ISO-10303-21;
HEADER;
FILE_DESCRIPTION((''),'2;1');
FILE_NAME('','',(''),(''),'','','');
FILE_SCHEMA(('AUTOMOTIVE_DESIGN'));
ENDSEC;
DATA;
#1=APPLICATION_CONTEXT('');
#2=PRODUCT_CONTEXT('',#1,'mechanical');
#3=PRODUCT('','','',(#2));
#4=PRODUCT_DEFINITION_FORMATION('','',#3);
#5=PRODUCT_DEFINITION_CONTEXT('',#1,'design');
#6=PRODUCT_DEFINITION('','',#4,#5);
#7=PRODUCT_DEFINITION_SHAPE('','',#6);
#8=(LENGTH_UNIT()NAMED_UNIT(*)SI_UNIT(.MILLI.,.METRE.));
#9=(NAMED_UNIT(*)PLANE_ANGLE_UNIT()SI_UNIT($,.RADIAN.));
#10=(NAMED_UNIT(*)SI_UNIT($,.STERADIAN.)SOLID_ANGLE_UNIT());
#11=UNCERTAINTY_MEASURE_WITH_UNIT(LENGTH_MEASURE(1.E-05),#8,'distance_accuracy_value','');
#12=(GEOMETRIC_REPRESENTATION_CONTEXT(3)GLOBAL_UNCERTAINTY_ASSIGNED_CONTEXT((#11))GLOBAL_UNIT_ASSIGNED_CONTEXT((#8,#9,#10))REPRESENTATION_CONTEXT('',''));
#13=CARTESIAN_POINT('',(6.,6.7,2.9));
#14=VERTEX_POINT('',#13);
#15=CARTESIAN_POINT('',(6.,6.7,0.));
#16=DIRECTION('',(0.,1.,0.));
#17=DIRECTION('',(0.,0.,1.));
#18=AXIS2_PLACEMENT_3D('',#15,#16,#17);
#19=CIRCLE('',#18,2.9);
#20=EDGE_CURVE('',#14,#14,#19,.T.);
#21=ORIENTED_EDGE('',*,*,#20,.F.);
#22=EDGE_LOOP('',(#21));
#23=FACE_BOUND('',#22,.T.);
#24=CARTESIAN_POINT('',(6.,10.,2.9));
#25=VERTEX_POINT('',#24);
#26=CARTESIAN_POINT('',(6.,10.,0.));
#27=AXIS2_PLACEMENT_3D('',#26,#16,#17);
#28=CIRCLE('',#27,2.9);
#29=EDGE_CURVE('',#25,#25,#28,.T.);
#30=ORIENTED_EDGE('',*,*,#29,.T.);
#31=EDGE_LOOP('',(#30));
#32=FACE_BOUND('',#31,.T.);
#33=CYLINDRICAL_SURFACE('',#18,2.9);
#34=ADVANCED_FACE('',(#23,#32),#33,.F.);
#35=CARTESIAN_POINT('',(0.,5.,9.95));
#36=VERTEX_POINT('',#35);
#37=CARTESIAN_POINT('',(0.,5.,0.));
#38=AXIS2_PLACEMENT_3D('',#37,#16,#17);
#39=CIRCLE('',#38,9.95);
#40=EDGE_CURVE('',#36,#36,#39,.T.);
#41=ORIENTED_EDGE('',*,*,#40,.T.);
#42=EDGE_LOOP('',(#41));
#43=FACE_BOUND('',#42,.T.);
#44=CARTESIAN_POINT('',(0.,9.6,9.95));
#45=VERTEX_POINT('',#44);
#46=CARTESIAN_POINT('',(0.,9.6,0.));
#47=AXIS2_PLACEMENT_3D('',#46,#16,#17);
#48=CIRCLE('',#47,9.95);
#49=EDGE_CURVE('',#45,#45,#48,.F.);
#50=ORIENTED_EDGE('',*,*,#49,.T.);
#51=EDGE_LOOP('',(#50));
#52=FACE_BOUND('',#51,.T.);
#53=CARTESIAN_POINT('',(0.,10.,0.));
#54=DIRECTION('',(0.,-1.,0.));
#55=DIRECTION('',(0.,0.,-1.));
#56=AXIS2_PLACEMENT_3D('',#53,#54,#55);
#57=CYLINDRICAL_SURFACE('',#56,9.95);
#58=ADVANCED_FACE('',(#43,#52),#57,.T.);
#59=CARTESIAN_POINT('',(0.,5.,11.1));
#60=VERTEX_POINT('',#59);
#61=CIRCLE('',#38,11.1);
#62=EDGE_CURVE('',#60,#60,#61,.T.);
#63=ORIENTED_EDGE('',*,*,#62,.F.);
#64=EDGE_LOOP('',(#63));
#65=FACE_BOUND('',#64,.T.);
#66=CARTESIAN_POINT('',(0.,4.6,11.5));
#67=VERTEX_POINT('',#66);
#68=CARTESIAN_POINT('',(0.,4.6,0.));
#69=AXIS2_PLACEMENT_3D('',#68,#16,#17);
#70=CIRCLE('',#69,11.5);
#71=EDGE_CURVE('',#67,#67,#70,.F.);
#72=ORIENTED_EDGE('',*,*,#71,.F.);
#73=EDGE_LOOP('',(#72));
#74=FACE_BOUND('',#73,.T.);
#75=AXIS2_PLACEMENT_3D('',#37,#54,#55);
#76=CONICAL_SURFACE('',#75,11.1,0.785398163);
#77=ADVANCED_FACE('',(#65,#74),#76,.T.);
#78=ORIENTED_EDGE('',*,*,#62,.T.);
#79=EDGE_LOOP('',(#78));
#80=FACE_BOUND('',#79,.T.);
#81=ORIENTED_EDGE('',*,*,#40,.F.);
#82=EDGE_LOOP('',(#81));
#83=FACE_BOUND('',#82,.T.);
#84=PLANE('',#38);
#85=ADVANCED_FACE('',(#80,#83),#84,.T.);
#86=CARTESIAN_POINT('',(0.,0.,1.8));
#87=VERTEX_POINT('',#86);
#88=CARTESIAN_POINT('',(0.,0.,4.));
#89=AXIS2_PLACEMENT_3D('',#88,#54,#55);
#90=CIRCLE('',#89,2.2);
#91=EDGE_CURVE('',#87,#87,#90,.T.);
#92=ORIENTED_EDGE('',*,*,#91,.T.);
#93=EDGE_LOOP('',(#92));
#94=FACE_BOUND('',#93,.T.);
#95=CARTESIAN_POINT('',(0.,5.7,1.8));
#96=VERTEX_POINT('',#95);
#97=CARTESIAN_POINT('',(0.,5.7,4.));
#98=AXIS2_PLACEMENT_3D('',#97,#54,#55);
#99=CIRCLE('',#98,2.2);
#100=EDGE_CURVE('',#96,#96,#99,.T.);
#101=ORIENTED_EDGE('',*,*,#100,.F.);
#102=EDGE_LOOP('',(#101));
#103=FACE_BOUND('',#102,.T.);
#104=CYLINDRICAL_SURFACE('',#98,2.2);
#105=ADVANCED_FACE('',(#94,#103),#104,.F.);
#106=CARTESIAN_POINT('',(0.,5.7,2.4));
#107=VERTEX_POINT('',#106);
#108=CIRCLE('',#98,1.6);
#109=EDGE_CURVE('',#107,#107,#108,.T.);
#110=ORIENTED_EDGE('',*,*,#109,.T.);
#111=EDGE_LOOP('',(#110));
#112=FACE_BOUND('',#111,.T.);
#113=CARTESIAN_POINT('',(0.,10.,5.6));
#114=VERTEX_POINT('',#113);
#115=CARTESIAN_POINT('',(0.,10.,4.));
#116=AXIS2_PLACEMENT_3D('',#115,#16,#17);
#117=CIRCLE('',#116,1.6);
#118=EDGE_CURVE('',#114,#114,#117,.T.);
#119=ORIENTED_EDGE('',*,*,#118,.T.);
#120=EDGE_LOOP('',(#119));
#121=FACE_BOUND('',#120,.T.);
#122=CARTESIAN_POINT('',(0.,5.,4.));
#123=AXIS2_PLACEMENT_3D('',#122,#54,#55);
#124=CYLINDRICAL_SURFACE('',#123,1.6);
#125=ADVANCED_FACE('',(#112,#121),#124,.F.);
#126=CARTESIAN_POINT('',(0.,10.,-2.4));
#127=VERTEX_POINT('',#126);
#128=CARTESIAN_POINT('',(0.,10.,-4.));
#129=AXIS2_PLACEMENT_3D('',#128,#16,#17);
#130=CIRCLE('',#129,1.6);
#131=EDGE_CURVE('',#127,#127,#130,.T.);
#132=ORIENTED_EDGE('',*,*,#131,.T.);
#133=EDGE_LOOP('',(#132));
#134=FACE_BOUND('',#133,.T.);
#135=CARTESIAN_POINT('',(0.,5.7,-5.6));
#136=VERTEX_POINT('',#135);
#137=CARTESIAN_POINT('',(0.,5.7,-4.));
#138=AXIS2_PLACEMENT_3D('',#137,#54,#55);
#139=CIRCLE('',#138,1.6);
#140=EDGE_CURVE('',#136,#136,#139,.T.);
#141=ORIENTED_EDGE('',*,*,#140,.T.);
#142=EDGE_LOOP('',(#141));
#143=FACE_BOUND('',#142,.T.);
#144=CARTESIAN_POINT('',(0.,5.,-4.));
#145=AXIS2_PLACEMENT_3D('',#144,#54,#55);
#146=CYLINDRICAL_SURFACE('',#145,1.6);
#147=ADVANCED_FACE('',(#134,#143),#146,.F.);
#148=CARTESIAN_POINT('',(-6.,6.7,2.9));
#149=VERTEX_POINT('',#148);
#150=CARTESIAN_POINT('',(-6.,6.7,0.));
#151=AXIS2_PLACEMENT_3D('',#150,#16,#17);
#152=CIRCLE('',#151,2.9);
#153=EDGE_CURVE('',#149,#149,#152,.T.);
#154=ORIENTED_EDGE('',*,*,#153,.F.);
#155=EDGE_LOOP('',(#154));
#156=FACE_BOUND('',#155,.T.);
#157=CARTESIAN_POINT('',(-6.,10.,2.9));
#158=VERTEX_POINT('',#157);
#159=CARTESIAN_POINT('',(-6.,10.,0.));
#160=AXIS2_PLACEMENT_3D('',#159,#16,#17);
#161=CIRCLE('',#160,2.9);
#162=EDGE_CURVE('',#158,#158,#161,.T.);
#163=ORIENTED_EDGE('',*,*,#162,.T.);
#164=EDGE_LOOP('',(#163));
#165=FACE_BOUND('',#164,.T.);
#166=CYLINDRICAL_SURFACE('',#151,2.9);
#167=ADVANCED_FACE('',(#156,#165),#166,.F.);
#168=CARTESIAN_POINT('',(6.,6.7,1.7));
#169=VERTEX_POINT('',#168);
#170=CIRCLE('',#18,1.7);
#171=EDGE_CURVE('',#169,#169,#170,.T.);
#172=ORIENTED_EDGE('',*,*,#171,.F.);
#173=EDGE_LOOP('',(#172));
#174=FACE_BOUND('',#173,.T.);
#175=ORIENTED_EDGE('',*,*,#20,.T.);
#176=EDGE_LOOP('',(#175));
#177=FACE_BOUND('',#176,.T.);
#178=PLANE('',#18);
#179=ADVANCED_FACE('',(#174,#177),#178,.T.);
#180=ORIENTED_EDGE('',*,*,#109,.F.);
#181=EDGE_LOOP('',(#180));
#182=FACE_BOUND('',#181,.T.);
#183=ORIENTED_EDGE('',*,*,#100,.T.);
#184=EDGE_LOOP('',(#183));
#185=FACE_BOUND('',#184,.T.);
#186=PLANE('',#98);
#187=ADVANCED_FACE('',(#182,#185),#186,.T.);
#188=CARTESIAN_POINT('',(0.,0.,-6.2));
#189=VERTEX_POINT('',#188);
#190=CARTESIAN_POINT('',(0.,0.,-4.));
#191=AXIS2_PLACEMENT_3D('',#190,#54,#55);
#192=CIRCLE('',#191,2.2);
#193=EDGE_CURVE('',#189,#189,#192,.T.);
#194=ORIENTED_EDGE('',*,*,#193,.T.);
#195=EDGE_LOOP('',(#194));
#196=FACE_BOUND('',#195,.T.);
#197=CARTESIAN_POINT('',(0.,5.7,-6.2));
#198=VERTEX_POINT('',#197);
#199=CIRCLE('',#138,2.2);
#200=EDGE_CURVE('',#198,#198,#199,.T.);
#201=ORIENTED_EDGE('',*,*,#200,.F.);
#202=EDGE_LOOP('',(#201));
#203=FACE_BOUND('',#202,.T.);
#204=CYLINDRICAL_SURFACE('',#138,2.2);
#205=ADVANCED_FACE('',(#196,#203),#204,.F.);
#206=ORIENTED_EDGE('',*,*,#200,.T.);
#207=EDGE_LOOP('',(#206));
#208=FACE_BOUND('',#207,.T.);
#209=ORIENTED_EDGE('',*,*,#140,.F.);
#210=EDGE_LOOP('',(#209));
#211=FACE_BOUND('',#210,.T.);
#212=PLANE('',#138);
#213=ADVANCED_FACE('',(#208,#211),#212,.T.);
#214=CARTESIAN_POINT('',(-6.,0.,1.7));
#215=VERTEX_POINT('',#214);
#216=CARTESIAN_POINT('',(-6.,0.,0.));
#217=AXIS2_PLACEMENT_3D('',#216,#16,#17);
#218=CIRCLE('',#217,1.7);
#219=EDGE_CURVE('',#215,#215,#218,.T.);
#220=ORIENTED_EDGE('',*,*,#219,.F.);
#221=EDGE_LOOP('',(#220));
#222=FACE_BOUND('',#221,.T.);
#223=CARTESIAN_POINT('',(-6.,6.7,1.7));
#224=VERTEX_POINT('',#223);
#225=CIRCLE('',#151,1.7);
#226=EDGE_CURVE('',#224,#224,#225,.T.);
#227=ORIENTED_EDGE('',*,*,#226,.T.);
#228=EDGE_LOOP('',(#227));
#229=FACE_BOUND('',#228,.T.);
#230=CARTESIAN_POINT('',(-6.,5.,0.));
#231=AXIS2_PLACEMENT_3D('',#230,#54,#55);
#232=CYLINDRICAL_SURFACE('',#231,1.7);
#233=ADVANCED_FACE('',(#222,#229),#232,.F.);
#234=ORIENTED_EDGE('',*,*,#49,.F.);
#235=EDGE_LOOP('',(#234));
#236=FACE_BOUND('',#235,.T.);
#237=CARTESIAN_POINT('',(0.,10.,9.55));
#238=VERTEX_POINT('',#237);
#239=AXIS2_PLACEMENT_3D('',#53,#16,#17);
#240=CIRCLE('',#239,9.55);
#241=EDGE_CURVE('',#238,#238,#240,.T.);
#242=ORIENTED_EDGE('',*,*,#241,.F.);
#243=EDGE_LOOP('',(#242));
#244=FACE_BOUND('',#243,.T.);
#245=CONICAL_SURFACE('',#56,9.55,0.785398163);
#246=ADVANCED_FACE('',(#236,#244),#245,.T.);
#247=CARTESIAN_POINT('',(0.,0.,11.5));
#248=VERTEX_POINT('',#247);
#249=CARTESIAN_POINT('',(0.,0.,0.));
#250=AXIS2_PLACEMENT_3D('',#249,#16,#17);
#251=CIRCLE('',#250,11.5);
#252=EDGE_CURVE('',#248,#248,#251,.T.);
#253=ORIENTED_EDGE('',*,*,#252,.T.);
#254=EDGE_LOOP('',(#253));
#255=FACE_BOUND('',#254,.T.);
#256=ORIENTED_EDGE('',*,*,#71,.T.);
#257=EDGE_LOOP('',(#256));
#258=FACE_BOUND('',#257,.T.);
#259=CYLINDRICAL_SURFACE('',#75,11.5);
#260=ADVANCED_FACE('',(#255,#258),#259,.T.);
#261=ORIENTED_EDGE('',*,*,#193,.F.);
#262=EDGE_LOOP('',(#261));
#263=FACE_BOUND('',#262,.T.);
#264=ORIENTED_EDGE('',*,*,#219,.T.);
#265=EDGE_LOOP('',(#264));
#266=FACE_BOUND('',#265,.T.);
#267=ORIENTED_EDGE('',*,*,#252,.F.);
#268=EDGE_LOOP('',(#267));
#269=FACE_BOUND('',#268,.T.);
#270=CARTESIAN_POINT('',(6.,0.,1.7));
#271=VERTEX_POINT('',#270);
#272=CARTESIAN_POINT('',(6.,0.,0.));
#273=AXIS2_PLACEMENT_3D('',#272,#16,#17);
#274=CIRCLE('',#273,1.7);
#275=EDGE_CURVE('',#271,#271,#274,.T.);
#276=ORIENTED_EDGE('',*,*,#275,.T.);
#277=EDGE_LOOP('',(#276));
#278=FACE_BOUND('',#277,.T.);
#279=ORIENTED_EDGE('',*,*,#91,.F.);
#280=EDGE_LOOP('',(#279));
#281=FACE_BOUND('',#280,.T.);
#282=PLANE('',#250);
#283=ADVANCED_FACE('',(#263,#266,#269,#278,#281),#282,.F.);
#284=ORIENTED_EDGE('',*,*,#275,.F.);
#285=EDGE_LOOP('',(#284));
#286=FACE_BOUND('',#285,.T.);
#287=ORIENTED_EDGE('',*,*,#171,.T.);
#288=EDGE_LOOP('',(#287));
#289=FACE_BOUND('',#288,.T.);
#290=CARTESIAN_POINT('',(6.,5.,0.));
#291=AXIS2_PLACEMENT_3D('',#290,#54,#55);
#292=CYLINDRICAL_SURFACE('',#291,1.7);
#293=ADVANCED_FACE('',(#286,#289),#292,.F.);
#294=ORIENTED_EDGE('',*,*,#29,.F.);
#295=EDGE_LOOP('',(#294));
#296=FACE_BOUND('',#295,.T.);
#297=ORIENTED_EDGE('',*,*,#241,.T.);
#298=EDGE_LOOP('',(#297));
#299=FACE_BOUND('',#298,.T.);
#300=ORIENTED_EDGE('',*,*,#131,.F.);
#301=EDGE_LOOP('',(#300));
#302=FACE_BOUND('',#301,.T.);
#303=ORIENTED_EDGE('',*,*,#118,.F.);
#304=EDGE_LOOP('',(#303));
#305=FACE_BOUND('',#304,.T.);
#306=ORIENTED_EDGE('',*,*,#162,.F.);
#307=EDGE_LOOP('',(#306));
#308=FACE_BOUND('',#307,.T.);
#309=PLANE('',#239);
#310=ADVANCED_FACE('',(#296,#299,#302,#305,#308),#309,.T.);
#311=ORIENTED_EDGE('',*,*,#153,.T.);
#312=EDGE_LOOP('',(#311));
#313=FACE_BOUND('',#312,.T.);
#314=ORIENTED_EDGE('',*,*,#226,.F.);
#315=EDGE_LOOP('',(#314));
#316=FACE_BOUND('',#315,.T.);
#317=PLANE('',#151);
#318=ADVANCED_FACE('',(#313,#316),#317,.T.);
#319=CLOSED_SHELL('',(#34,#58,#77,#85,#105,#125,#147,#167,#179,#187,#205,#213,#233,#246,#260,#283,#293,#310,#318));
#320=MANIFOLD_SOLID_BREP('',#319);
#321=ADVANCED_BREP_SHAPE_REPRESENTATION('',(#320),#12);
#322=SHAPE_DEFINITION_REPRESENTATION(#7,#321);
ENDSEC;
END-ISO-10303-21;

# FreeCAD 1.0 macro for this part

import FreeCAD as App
import Part
import Sketcher
from FreeCAD import Vector


def edges_at(feature, points):
    """Names of the edges that pass closest to the given points."""
    edges = feature.Shape.Edges
    near = lambda p: min(range(len(edges)), key=lambda i: edges[i].distToShape(Part.Vertex(*p))[0])
    return sorted({f"Edge{near(p) + 1}" for p in points})

doc = App.newDocument("Part")
params = doc.addObject("Spreadsheet::Sheet", "Params")
for row, (alias, value) in enumerate([
    ("sketch1_diameter", "23 mm"),
    ("sketch1_diameter2", "3.2 mm"),
    ("sketch1_diameter3", "3.4 mm"),
    ("pad1_length", "5 mm"),
    ("sketch2_diameter", "19.9 mm"),
    ("sketch2_diameter2", "3.2 mm"),
    ("sketch2_diameter3", "3.4 mm"),
    ("pad2_length", "5 mm"),
    ("chamfer_size", "0.4 mm"),
    ("chamfer2_size", "0.4 mm"),
    ("sketch3_diameter", "4.4 mm"),
    ("pocket1_length", "5.7 mm"),
    ("sketch4_diameter", "5.8 mm"),
    ("pocket2_length", "3.3 mm"),
], start=1):
    params.set(f"A{row}", alias)
    params.set(f"B{row}", "=" + value)
    params.setAlias(f"B{row}", alias)

body = doc.addObject("PartDesign::Body", "Body")

# Sketch on XZ plane
sketch1 = body.newObject("Sketcher::SketchObject", "Sketch")
sketch1.AttachmentSupport = (doc.getObject("XZ_Plane"), [""])
sketch1.MapMode = "FlatFace"
sketch1.addGeometry([
    Part.Circle(Vector(0, 0, 0), Vector(0, 0, 1), 11.5),  # 0
    Part.Circle(Vector(0, 4, 0), Vector(0, 0, 1), 1.6),  # 1
    Part.Circle(Vector(-6, 0, 0), Vector(0, 0, 1), 1.7),  # 2
    Part.Circle(Vector(0, -4, 0), Vector(0, 0, 1), 1.6),  # 3
    Part.Circle(Vector(6, 0, 0), Vector(0, 0, 1), 1.7),  # 4
], False)
sketch1.addConstraint([
    Sketcher.Constraint("Coincident", 0, 3, -1, 1),
    Sketcher.Constraint("Equal", 1, 3),
    Sketcher.Constraint("Equal", 2, 4),
    Sketcher.Constraint("Symmetric", 1, 3, 3, 3, -1, 1),
    Sketcher.Constraint("Symmetric", 2, 3, 4, 3, -1, 1),
    Sketcher.Constraint("PointOnObject", 1, 3, -2),
    Sketcher.Constraint("PointOnObject", 2, 3, -1),
    Sketcher.Constraint("Diameter", 0, 23.0),
    Sketcher.Constraint("Diameter", 1, 3.2),
    Sketcher.Constraint("Diameter", 2, 3.4),
    Sketcher.Constraint("DistanceY", -1, 1, 1, 3, 4.0),
    Sketcher.Constraint("DistanceX", 2, 3, -1, 1, 6.0),
])
sketch1.setExpression("Constraints[7]", "Params.sketch1_diameter")
sketch1.setExpression("Constraints[8]", "Params.sketch1_diameter2")
sketch1.setExpression("Constraints[9]", "Params.sketch1_diameter3")
pad1 = body.newObject("PartDesign::Pad", "Pad")
pad1.Profile = sketch1
pad1.setExpression("Length", "Params.pad1_length")
pad1.Reversed = True

# Sketch on XZ plane
sketch2 = body.newObject("Sketcher::SketchObject", "Sketch001")
sketch2.AttachmentSupport = (doc.getObject("XZ_Plane"), [""])
sketch2.MapMode = "FlatFace"
sketch2.AttachmentOffset = App.Placement(Vector(0, 0, -5), App.Rotation())
sketch2.addGeometry([
    Part.Circle(Vector(0, 0, 0), Vector(0, 0, 1), 9.9),  # 0
    Part.Circle(Vector(0, 4, 0), Vector(0, 0, 1), 1.6),  # 1
    Part.Circle(Vector(-6, 0, 0), Vector(0, 0, 1), 1.7),  # 2
    Part.Circle(Vector(0, -4, 0), Vector(0, 0, 1), 1.6),  # 3
    Part.Circle(Vector(6, 0, 0), Vector(0, 0, 1), 1.7),  # 4
], False)
sketch2.addConstraint([
    Sketcher.Constraint("Coincident", 0, 3, -1, 1),
    Sketcher.Constraint("Equal", 1, 3),
    Sketcher.Constraint("Equal", 2, 4),
    Sketcher.Constraint("Symmetric", 1, 3, 3, 3, -1, 1),
    Sketcher.Constraint("Symmetric", 2, 3, 4, 3, -1, 1),
    Sketcher.Constraint("PointOnObject", 1, 3, -2),
    Sketcher.Constraint("PointOnObject", 2, 3, -1),
    Sketcher.Constraint("Diameter", 0, 19.9),
    Sketcher.Constraint("Diameter", 1, 3.2),
    Sketcher.Constraint("Diameter", 2, 3.4),
    Sketcher.Constraint("DistanceY", -1, 1, 1, 3, 4.0),
    Sketcher.Constraint("DistanceX", 2, 3, -1, 1, 6.0),
])
sketch2.setExpression("Constraints[7]", "Params.sketch2_diameter")
sketch2.setExpression("Constraints[8]", "Params.sketch2_diameter2")
sketch2.setExpression("Constraints[9]", "Params.sketch2_diameter3")
pad2 = body.newObject("PartDesign::Pad", "Pad001")
pad2.Profile = sketch2
pad2.setExpression("Length", "Params.pad2_length")
pad2.Reversed = True
doc.recompute()

chamfer = body.newObject("PartDesign::Chamfer", "Chamfer")
chamfer.Base = (pad2, edges_at(pad2, [(-9.95, 10, 0)]))
chamfer.setExpression("Size", "Params.chamfer_size")
doc.recompute()

chamfer2 = body.newObject("PartDesign::Chamfer", "Chamfer001")
chamfer2.Base = (chamfer, edges_at(chamfer, [(-11.5, 5, 0)]))
chamfer2.setExpression("Size", "Params.chamfer2_size")

# Sketch on XZ plane
sketch3 = body.newObject("Sketcher::SketchObject", "Sketch002")
sketch3.AttachmentSupport = (doc.getObject("XZ_Plane"), [""])
sketch3.MapMode = "FlatFace"
sketch3.addGeometry([
    Part.Circle(Vector(0, -4, 0), Vector(0, 0, 1), 2.2),
    Part.Circle(Vector(0, 4, 0), Vector(0, 0, 1), 2.2),
], False)
sketch3.addConstraint([
    Sketcher.Constraint("Equal", 0, 1),
    Sketcher.Constraint("Symmetric", 0, 3, 1, 3, -1, 1),
    Sketcher.Constraint("PointOnObject", 0, 3, -2),
    Sketcher.Constraint("Diameter", 0, 4.4),
    Sketcher.Constraint("DistanceY", 0, 3, -1, 1, 4.0),
])
sketch3.setExpression("Constraints[3]", "Params.sketch3_diameter")
pocket1 = body.newObject("PartDesign::Pocket", "Pocket")
pocket1.Profile = sketch3
pocket1.setExpression("Length", "Params.pocket1_length")

# Sketch on XZ plane
sketch4 = body.newObject("Sketcher::SketchObject", "Sketch003")
sketch4.AttachmentSupport = (doc.getObject("XZ_Plane"), [""])
sketch4.MapMode = "FlatFace"
sketch4.AttachmentOffset = App.Placement(Vector(0, 0, -10), App.Rotation())
sketch4.addGeometry([
    Part.Circle(Vector(-6, 0, 0), Vector(0, 0, 1), 2.9),
    Part.Circle(Vector(6, 0, 0), Vector(0, 0, 1), 2.9),
], False)
sketch4.addConstraint([
    Sketcher.Constraint("Equal", 0, 1),
    Sketcher.Constraint("Symmetric", 0, 3, 1, 3, -1, 1),
    Sketcher.Constraint("PointOnObject", 0, 3, -1),
    Sketcher.Constraint("Diameter", 0, 5.8),
    Sketcher.Constraint("DistanceX", 0, 3, -1, 1, 6.0),
])
sketch4.setExpression("Constraints[3]", "Params.sketch4_diameter")
pocket2 = body.newObject("PartDesign::Pocket", "Pocket001")
pocket2.Profile = sketch4
pocket2.setExpression("Length", "Params.pocket2_length")
pocket2.Reversed = True

doc.recompute()
